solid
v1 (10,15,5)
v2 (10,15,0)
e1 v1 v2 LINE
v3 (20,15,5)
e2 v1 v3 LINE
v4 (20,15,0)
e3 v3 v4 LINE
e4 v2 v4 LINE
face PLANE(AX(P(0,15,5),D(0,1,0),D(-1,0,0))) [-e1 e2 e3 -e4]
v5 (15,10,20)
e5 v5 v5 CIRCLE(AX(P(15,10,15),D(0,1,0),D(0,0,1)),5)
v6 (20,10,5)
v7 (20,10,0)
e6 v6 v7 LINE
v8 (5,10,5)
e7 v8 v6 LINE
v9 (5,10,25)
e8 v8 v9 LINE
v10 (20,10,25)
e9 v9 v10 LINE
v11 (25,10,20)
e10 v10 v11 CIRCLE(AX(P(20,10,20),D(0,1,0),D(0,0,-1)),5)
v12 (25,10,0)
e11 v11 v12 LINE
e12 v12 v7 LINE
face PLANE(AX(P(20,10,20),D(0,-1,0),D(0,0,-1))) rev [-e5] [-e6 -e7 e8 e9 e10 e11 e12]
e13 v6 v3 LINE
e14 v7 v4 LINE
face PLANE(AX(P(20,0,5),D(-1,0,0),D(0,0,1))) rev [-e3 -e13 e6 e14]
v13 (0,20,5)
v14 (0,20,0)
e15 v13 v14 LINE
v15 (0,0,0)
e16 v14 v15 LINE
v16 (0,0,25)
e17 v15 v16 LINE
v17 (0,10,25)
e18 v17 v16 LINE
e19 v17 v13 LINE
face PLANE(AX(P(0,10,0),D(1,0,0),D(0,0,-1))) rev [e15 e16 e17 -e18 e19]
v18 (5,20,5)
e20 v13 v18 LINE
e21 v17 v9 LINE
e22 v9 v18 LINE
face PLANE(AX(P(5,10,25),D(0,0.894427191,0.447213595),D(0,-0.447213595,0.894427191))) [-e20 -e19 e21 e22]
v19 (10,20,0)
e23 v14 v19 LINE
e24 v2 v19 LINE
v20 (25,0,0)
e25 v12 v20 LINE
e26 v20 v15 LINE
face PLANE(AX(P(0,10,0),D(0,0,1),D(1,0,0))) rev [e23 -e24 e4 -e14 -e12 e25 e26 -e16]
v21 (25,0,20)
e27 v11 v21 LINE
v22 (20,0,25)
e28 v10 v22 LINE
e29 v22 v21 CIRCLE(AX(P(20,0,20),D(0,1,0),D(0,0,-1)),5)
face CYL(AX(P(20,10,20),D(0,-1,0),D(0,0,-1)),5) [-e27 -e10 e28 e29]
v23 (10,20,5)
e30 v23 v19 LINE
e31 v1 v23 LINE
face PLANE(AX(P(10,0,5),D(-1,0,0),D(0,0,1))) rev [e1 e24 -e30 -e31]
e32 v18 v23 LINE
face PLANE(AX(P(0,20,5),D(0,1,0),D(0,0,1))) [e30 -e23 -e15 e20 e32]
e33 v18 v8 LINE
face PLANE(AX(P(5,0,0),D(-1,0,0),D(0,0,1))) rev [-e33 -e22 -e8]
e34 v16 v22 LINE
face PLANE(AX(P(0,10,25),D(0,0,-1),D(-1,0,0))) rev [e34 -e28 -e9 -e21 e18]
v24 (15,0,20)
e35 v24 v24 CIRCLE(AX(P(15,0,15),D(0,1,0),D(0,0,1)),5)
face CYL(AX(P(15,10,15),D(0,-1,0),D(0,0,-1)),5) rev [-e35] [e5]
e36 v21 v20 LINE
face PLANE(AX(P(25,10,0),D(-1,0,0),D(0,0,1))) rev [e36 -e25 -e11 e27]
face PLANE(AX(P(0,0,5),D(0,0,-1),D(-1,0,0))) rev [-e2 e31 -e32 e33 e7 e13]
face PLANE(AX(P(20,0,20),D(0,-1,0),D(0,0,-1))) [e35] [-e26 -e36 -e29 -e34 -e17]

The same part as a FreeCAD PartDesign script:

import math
import FreeCAD as App
import Part
import Sketcher

V = App.Vector
Q = App.Units.Quantity


def add_polygon(sketch, points):
    """Adds a closed chain of lines whose ends are joined by coincident constraints."""
    first, n = sketch.GeometryCount, len(points)
    for a, b in zip(points, points[1:] + points[:1]):
        sketch.addGeometry(Part.LineSegment(App.Vector(*a, 0), App.Vector(*b, 0)), False)
    for i in range(n):
        sketch.addConstraint(Sketcher.Constraint("Coincident", first + i, 2, first + (i + 1) % n, 1))

doc = App.newDocument("Part")
body = doc.addObject("PartDesign::Body", "Body")

sketch1 = body.newObject("Sketcher::SketchObject", "Sketch")
sketch1.AttachmentSupport = (doc.getObject("XZ_Plane"), [""])
sketch1.MapMode = "FlatFace"
sketch1.addGeometry([
    Part.LineSegment(V(25, 0, 0), V(0, 0, 0)),
    Part.LineSegment(V(0, 0, 0), V(0, 25, 0)),
    Part.LineSegment(V(0, 25, 0), V(20, 25, 0)),
    Part.ArcOfCircle(Part.Circle(V(20, 20, 0), V(0, 0, 1), 5), math.radians(0), math.radians(90)),
    Part.LineSegment(V(25, 20, 0), V(25, 0, 0)),
    Part.Circle(V(15, 15, 0), V(0, 0, 1), 5),
], False)
sketch1.addConstraint([
    Sketcher.Constraint("Coincident", 0, 2, 1, 1),
    Sketcher.Constraint("Coincident", 1, 2, 2, 1),
    Sketcher.Constraint("Tangent", 2, 2, 3, 2),
    Sketcher.Constraint("Tangent", 3, 1, 4, 1),
    Sketcher.Constraint("Coincident", 4, 2, 0, 1),
    Sketcher.Constraint("Horizontal", 0),
    Sketcher.Constraint("Vertical", 1),
    Sketcher.Constraint("Horizontal", 2),
    Sketcher.Constraint("Vertical", 4),
    Sketcher.Constraint("Coincident", 0, 2, -1, 1),
    Sketcher.Constraint("Equal", 3, 5),
    Sketcher.Constraint("Equal", 0, 1),
    Sketcher.Constraint("Diameter", 5, Q("10 mm")),
    Sketcher.Constraint("DistanceX", 0, 2, 0, 1, Q("25 mm")),
    Sketcher.Constraint("DistanceX", -1, 1, 5, 3, Q("15 mm")),
    Sketcher.Constraint("DistanceY", -1, 1, 5, 3, Q("15 mm")),
])
pad1 = body.newObject("PartDesign::Pad", "Pad")
pad1.Profile = sketch1
pad1.Length = 10
pad1.Reversed = True

sketch2 = body.newObject("Sketcher::SketchObject", "Sketch001")
sketch2.AttachmentSupport = (doc.getObject("XY_Plane"), [""])
sketch2.MapMode = "FlatFace"
add_polygon(sketch2, [(0, 10), (0, 20), (10, 20), (10, 15), (20, 15), (20, 10)])
sketch2.addConstraint([
    Sketcher.Constraint("Vertical", 0),
    Sketcher.Constraint("Horizontal", 1),
    Sketcher.Constraint("Vertical", 2),
    Sketcher.Constraint("Horizontal", 3),
    Sketcher.Constraint("Vertical", 4),
    Sketcher.Constraint("Horizontal", 5),
    Sketcher.Constraint("PointOnObject", 0, 2, -2),
    Sketcher.Constraint("Equal", 1, 3),
    Sketcher.Constraint("Equal", 3, 0),
    Sketcher.Constraint("Equal", 2, 4),
    Sketcher.Constraint("DistanceX", 1, 1, 1, 2, Q("10 mm")),
    Sketcher.Constraint("DistanceY", -1, 1, 0, 2, Q("20 mm")),
])
pad2 = body.newObject("PartDesign::Pad", "Pad001")
pad2.Profile = sketch2
pad2.Length = 5

sketch3 = body.newObject("Sketcher::SketchObject", "Sketch002")
sketch3.AttachmentSupport = (doc.getObject("YZ_Plane"), [""])
sketch3.MapMode = "FlatFace"
add_polygon(sketch3, [(20, 5), (10, 5), (10, 25)])
sketch3.addConstraint([
    Sketcher.Constraint("Horizontal", 0),
    Sketcher.Constraint("Vertical", 1),
    Sketcher.Constraint("DistanceX", 0, 2, 0, 1, Q("10 mm")),
    Sketcher.Constraint("DistanceY", 1, 1, 1, 2, Q("20 mm")),
    Sketcher.Constraint("DistanceX", -1, 1, 0, 2, Q("10 mm")),
    Sketcher.Constraint("DistanceY", -1, 1, 0, 2, Q("5 mm")),
])
pad3 = body.newObject("PartDesign::Pad", "Pad002")
pad3.Profile = sketch3
pad3.Length = 5

doc.recompute()
